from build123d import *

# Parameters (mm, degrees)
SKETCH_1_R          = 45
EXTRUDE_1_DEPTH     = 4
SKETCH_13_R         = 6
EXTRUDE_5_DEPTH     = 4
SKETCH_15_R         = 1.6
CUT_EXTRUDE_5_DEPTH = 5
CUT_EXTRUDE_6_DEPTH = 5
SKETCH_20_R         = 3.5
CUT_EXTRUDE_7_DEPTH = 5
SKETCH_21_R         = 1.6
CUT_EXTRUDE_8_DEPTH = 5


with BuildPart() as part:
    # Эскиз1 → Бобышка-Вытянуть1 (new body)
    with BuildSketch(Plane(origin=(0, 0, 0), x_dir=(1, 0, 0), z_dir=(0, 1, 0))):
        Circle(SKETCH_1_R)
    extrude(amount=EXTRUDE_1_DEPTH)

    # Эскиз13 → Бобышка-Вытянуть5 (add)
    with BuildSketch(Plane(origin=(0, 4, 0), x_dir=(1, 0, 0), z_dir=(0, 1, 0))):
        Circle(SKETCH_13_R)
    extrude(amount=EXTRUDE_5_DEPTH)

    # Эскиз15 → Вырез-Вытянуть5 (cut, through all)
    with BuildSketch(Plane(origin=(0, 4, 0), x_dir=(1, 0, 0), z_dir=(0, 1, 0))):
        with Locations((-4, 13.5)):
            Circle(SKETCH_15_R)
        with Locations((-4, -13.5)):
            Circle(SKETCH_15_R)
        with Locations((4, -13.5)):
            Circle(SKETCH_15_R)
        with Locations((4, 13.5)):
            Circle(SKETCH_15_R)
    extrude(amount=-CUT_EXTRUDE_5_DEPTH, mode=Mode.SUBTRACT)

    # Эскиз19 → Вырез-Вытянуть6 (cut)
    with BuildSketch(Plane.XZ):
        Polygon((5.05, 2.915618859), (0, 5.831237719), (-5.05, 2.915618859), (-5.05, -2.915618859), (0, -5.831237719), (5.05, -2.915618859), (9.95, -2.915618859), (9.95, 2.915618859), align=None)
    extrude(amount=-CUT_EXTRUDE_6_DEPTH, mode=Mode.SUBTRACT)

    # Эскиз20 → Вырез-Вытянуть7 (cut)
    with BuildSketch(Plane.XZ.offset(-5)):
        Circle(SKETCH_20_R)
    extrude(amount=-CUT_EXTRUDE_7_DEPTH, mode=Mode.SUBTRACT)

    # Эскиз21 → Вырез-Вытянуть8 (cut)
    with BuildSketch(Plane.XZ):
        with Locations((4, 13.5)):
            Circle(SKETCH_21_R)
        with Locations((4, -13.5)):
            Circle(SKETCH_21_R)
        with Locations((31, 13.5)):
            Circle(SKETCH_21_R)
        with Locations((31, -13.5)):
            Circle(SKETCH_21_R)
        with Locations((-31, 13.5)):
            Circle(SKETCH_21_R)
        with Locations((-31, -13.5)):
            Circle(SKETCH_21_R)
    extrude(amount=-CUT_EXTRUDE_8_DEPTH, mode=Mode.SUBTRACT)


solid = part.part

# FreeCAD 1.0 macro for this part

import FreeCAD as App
import Part
import Sketcher
from FreeCAD import Vector
Q = App.Units.Quantity


def add_polygon(sketch, points):
    """Adds a closed chain of lines whose ends are joined by coincident constraints."""
    first, n = sketch.GeometryCount, len(points)
    for a, b in zip(points, points[1:] + points[:1]):
        sketch.addGeometry(Part.LineSegment(App.Vector(*a, 0), App.Vector(*b, 0)), False)
    for i in range(n):
        sketch.addConstraint(Sketcher.Constraint("Coincident", first + i, 2, first + (i + 1) % n, 1))

doc = App.newDocument("Part")
body = doc.addObject("PartDesign::Body", "Body")

# Sketch on XZ plane
sketch1 = doc.addObject("Sketcher::SketchObject", "Sketch")
body.addObject(sketch1)
sketch1.AttachmentSupport = (doc.XZ_Plane, [""])
sketch1.MapMode = "FlatFace"
sketch1.addGeometry(Part.Circle(Vector(0, 0, 0), Vector(0, 0, 1), 45), False)
sketch1.addConstraint([
    Sketcher.Constraint("Coincident", 0, 3, -1, 1),
    Sketcher.Constraint("Diameter", 0, Q("90 mm")),
])
pad1 = doc.addObject("PartDesign::Pad", "Pad")
body.addObject(pad1)
pad1.Profile = sketch1
pad1.Length = 4
pad1.Reversed = True

# Sketch on XZ plane
sketch2 = doc.addObject("Sketcher::SketchObject", "Sketch001")
body.addObject(sketch2)
sketch2.AttachmentSupport = (doc.XZ_Plane, [""])
sketch2.MapMode = "FlatFace"
sketch2.AttachmentOffset = App.Placement(Vector(0, 0, -4), App.Rotation())
sketch2.addGeometry(Part.Circle(Vector(0, 0, 0), Vector(0, 0, 1), 6), False)
sketch2.addConstraint([
    Sketcher.Constraint("Coincident", 0, 3, -1, 1),
    Sketcher.Constraint("Diameter", 0, Q("12 mm")),
])
pad2 = doc.addObject("PartDesign::Pad", "Pad001")
body.addObject(pad2)
pad2.Profile = sketch2
pad2.Length = 4
pad2.Reversed = True

# Sketch on XZ plane
sketch3 = doc.addObject("Sketcher::SketchObject", "Sketch002")
body.addObject(sketch3)
sketch3.AttachmentSupport = (doc.XZ_Plane, [""])
sketch3.MapMode = "FlatFace"
sketch3.AttachmentOffset = App.Placement(Vector(0, 0, -4), App.Rotation())
sketch3.addGeometry([
    Part.Circle(Vector(-4, -13.5, 0), Vector(0, 0, 1), 1.6),
    Part.Circle(Vector(-4, 13.5, 0), Vector(0, 0, 1), 1.6),
    Part.Circle(Vector(4, 13.5, 0), Vector(0, 0, 1), 1.6),
    Part.Circle(Vector(4, -13.5, 0), Vector(0, 0, 1), 1.6),
], False)
sketch3.addConstraint([
    Sketcher.Constraint("Equal", 0, 1),
    Sketcher.Constraint("Equal", 1, 2),
    Sketcher.Constraint("Equal", 2, 3),
    Sketcher.Constraint("Symmetric", 0, 3, 2, 3, -1, 1),
    Sketcher.Constraint("Symmetric", 1, 3, 3, 3, -1, 1),
    Sketcher.Constraint("Symmetric", 1, 3, 2, 3, -2),
    Sketcher.Constraint("Diameter", 0, Q("3.2 mm")),
    Sketcher.Constraint("DistanceX", 0, 3, -1, 1, Q("4 mm")),
    Sketcher.Constraint("DistanceY", 0, 3, 1, 3, Q("27 mm")),
])
pocket1 = doc.addObject("PartDesign::Pocket", "Pocket")
body.addObject(pocket1)
pocket1.Profile = sketch3
pocket1.Type = "ThroughAll"
pocket1.Reversed = True

# Sketch on XZ plane
sketch4 = doc.addObject("Sketcher::SketchObject", "Sketch003")
body.addObject(sketch4)
sketch4.AttachmentSupport = (doc.XZ_Plane, [""])
sketch4.MapMode = "FlatFace"
add_polygon(sketch4, [(5, 2.9), (0, 5.8), (-5, 2.9), (-5, -2.9), (0, -5.8), (5, -2.9), (9.9, -2.9), (9.9, 2.9)])  # lines 0-7
sketch4.addConstraint([
    Sketcher.Constraint("Vertical", 2),
    Sketcher.Constraint("Horizontal", 5),
    Sketcher.Constraint("Vertical", 6),
    Sketcher.Constraint("Horizontal", 7),
    Sketcher.Constraint("Symmetric", 0, 2, 3, 2, -1, 1),
    Sketcher.Constraint("Symmetric", 1, 2, 4, 2, -1, 1),
    Sketcher.Constraint("Symmetric", 2, 2, 7, 2, -1, 1),
    Sketcher.Constraint("PointOnObject", 0, 2, -2),
    Sketcher.Constraint("Horizontal", 2, 2, 4, 2),
    Sketcher.Constraint("Angle", 0, Q("150 deg")),
    Sketcher.Constraint("DistanceX", 5, 1, 5, 2, Q("4.9 mm")),
    Sketcher.Constraint("DistanceX", 2, 2, 5, 2, Q("15 mm")),
    Sketcher.Constraint("DistanceY", 2, 2, 2, 1, Q("5.831238 mm")),
])
pocket2 = doc.addObject("PartDesign::Pocket", "Pocket001")
body.addObject(pocket2)
pocket2.Profile = sketch4
pocket2.Length = 5

# Sketch on XZ plane
sketch5 = doc.addObject("Sketcher::SketchObject", "Sketch004")
body.addObject(sketch5)
sketch5.AttachmentSupport = (doc.XZ_Plane, [""])
sketch5.MapMode = "FlatFace"
sketch5.AttachmentOffset = App.Placement(Vector(0, 0, -5), App.Rotation())
sketch5.addGeometry(Part.Circle(Vector(0, 0, 0), Vector(0, 0, 1), 3.5), False)
sketch5.addConstraint([
    Sketcher.Constraint("Coincident", 0, 3, -1, 1),
    Sketcher.Constraint("Diameter", 0, Q("7 mm")),
])
pocket3 = doc.addObject("PartDesign::Pocket", "Pocket002")
body.addObject(pocket3)
pocket3.Profile = sketch5
pocket3.Length = 5

# Sketch on XZ plane
sketch6 = doc.addObject("Sketcher::SketchObject", "Sketch005")
body.addObject(sketch6)
sketch6.AttachmentSupport = (doc.XZ_Plane, [""])
sketch6.MapMode = "FlatFace"
sketch6.addGeometry([
    Part.Circle(Vector(4, 13.5, 0), Vector(0, 0, 1), 1.6),  # 0
    Part.Circle(Vector(4, -13.5, 0), Vector(0, 0, 1), 1.6),  # 1
    Part.Circle(Vector(31, 13.5, 0), Vector(0, 0, 1), 1.6),  # 2
    Part.Circle(Vector(31, -13.5, 0), Vector(0, 0, 1), 1.6),  # 3
    Part.Circle(Vector(-31, 13.5, 0), Vector(0, 0, 1), 1.6),  # 4
    Part.Circle(Vector(-31, -13.5, 0), Vector(0, 0, 1), 1.6),  # 5
], False)
sketch6.addConstraint([
    Sketcher.Constraint("Equal", 0, 1),
    Sketcher.Constraint("Equal", 1, 2),
    Sketcher.Constraint("Equal", 2, 3),
    Sketcher.Constraint("Equal", 3, 4),
    Sketcher.Constraint("Equal", 4, 5),
    Sketcher.Constraint("Symmetric", 3, 3, 4, 3, -1, 1),
    Sketcher.Constraint("Symmetric", 2, 3, 5, 3, -1, 1),
    Sketcher.Constraint("Symmetric", 2, 3, 4, 3, -2),
    Sketcher.Constraint("Symmetric", 0, 3, 1, 3, -1),
    Sketcher.Constraint("Horizontal", 0, 3, 2, 3),
    Sketcher.Constraint("Diameter", 0, Q("3.2 mm")),
    Sketcher.Constraint("DistanceX", -1, 1, 0, 3, Q("4 mm")),
    Sketcher.Constraint("DistanceX", -1, 1, 2, 3, Q("31 mm")),
    Sketcher.Constraint("DistanceY", 1, 3, 0, 3, Q("27 mm")),
])
pocket4 = doc.addObject("PartDesign::Pocket", "Pocket003")
body.addObject(pocket4)
pocket4.Profile = sketch6
pocket4.Length = 5

doc.recompute()
